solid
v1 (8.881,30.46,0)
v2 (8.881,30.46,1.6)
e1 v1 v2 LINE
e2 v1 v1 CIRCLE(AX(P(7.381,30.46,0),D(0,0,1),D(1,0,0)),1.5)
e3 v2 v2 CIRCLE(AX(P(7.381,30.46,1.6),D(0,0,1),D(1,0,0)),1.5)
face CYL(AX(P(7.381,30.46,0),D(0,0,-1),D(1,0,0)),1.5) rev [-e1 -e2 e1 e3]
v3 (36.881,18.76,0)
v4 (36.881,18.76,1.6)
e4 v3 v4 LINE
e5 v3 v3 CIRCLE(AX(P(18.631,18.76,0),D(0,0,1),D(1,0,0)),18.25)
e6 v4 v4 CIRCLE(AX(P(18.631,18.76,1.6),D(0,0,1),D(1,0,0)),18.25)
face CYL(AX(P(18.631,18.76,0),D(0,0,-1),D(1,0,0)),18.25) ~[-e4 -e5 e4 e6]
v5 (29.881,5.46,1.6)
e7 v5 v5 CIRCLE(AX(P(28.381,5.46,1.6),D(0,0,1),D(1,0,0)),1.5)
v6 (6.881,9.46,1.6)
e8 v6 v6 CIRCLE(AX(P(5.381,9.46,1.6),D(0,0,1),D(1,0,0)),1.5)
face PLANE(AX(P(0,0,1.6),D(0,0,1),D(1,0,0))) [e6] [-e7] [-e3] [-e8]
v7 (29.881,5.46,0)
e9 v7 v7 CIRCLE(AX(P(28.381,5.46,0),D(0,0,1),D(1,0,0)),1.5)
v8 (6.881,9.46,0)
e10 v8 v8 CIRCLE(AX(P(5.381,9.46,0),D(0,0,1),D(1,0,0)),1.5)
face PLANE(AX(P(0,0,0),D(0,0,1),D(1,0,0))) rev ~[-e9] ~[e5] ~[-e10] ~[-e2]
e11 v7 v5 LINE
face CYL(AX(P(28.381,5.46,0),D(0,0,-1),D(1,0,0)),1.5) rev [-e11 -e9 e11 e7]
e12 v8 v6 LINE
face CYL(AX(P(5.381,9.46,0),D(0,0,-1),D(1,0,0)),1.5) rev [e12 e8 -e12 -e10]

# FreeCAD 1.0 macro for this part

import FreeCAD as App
import Part
import Sketcher

V = App.Vector
Q = App.Units.Quantity

doc = App.newDocument("Part")
body = doc.addObject("PartDesign::Body", "Body")

sketch1 = body.newObject("Sketcher::SketchObject", "Sketch")
sketch1.AttachmentSupport = (doc.getObject("XY_Plane"), [""])
sketch1.MapMode = "FlatFace"
sketch1.addGeometry([
    Part.Circle(V(18.6, 18.8, 0), V(0, 0, 1), 18.2),
    Part.Circle(V(5.4, 9.5, 0), V(0, 0, 1), 1.5),
    Part.Circle(V(28.4, 5.5, 0), V(0, 0, 1), 1.5),
    Part.Circle(V(7.4, 30.5, 0), V(0, 0, 1), 1.5),
], False)
sketch1.addConstraint([
    Sketcher.Constraint("Equal", 1, 2),
    Sketcher.Constraint("Equal", 2, 3),
    Sketcher.Constraint("Diameter", 0, Q("1.437 in")),
    Sketcher.Constraint("Diameter", 1, Q("0.1181 in")),
    Sketcher.Constraint("DistanceX", -1, 1, 0, 3, Q("0.7335 in")),
    Sketcher.Constraint("DistanceX", -1, 1, 3, 3, Q("0.2906 in")),
    Sketcher.Constraint("DistanceY", -1, 1, 0, 3, 18.76),
    Sketcher.Constraint("DistanceX", -1, 1, 1, 3, 5.381),
    Sketcher.Constraint("DistanceY", -1, 1, 1, 3, 9.46),
    Sketcher.Constraint("DistanceX", -1, 1, 2, 3, 28.381),
    Sketcher.Constraint("DistanceY", -1, 1, 2, 3, 5.46),
    Sketcher.Constraint("DistanceY", -1, 1, 3, 3, 30.46),
])
pad1 = body.newObject("PartDesign::Pad", "Pad")
pad1.Profile = sketch1
pad1.Length = Q("0.0629921 in")

doc.recompute()
